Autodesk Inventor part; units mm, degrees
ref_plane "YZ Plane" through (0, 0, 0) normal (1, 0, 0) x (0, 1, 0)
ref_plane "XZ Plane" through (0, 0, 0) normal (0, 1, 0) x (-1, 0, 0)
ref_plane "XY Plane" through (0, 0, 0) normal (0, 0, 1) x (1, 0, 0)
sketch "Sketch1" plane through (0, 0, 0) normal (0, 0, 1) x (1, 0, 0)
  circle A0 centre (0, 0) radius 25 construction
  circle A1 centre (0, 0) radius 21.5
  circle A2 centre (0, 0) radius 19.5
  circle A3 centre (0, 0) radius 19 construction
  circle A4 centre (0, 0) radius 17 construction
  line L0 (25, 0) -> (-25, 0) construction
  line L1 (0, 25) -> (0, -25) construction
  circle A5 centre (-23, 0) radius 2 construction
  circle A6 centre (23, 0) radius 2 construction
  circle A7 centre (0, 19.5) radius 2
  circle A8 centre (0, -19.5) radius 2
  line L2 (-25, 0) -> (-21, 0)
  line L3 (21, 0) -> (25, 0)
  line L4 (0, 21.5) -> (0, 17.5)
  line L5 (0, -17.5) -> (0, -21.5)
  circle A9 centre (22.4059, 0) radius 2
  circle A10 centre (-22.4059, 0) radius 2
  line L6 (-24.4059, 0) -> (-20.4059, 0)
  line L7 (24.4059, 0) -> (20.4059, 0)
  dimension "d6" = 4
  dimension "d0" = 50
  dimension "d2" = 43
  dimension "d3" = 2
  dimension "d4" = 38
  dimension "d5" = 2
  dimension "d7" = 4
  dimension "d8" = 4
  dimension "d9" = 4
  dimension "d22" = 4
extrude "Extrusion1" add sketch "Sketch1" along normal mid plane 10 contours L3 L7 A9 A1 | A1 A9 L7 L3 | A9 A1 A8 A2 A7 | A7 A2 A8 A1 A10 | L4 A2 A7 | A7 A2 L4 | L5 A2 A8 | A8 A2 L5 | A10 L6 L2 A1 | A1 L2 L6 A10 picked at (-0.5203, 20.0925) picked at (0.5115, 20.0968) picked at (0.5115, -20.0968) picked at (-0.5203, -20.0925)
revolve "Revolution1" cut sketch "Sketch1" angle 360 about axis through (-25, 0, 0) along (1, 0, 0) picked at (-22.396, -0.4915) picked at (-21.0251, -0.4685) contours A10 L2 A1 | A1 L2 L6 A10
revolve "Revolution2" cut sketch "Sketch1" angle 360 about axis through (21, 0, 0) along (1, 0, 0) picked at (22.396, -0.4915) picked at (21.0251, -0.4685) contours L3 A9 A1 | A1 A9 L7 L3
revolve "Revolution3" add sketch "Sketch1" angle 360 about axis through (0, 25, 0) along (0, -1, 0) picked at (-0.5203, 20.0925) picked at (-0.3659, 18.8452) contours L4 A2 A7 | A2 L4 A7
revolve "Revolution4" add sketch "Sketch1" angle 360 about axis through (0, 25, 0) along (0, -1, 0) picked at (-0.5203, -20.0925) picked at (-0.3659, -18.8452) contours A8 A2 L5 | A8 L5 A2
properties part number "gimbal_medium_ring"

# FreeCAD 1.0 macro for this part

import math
import FreeCAD as App
import Part
import Sketcher

V = App.Vector
Q = App.Units.Quantity

doc = App.newDocument("Part")
body = doc.addObject("PartDesign::Body", "Body")

# Sketch on XY plane
sketch1 = body.newObject("Sketcher::SketchObject", "Sketch")
sketch1.AttachmentSupport = (doc.getObject("XY_Plane"), [""])
sketch1.MapMode = "FlatFace"
sketch1.addGeometry(Part.Circle(V(0, 0, 0), V(0, 0, 1), 22), False)
sketch1.addGeometry(Part.Circle(V(0, 0, 0), V(0, 0, 1), 20), False)
sketch1.addConstraint(Sketcher.Constraint("Coincident", 0, 3, -1, 1))
sketch1.addConstraint(Sketcher.Constraint("Coincident", 1, 3, -1, 1))
sketch1.addConstraint(Sketcher.Constraint("Diameter", 0, Q("43 mm")))
sketch1.addConstraint(Sketcher.Constraint("Diameter", 1, Q("39 mm")))
pad1 = body.newObject("PartDesign::Pad", "Pad")
pad1.Profile = sketch1
pad1.Length = 10
pad1.Midplane = True

# Sketch on XY plane
sketch2 = body.newObject("Sketcher::SketchObject", "Sketch001")
sketch2.AttachmentSupport = (doc.getObject("XY_Plane"), [""])
sketch2.MapMode = "FlatFace"
sketch2.addGeometry(Part.ArcOfCircle(Part.Circle(V(-22.4, 0, 0), V(0, 0, 1), 2), math.radians(180), math.radians(360)), False)
sketch2.addGeometry(Part.LineSegment(V(-20.4, 0, 0), V(-24.4, 0, 0)), False)
sketch2.addConstraint(Sketcher.Constraint("Coincident", 0, 1, 1, 2))
sketch2.addConstraint(Sketcher.Constraint("Coincident", 1, 1, 0, 2))
sketch2.addConstraint(Sketcher.Constraint("Horizontal", 1))
sketch2.addConstraint(Sketcher.Constraint("PointOnObject", 0, 3, -1))
sketch2.addConstraint(Sketcher.Constraint("PointOnObject", 0, 1, -1))
sketch2.addConstraint(Sketcher.Constraint("Radius", 0, Q("2 mm")))
sketch2.addConstraint(Sketcher.Constraint("DistanceX", 0, 3, -1, 1, Q("22.406 mm")))
groove = body.newObject("PartDesign::Groove", "Groove")
groove.Profile = sketch2
groove.ReferenceAxis = (sketch2, ["H_Axis"])
groove.Angle = 360

# Sketch on XY plane
sketch3 = body.newObject("Sketcher::SketchObject", "Sketch002")
sketch3.AttachmentSupport = (doc.getObject("XY_Plane"), [""])
sketch3.MapMode = "FlatFace"
sketch3.addGeometry(Part.LineSegment(V(24.4, 0, 0), V(20.4, 0, 0)), False)
sketch3.addGeometry(Part.ArcOfCircle(Part.Circle(V(22.4, 0, 0), V(0, 0, 1), 2), math.radians(180), math.radians(360)), False)
sketch3.addConstraint(Sketcher.Constraint("Coincident", 0, 1, 1, 2))
sketch3.addConstraint(Sketcher.Constraint("Coincident", 1, 1, 0, 2))
sketch3.addConstraint(Sketcher.Constraint("Horizontal", 0))
sketch3.addConstraint(Sketcher.Constraint("PointOnObject", 1, 3, -1))
sketch3.addConstraint(Sketcher.Constraint("PointOnObject", 0, 1, -1))
sketch3.addConstraint(Sketcher.Constraint("Radius", 1, Q("2 mm")))
sketch3.addConstraint(Sketcher.Constraint("DistanceX", -1, 1, 1, 3, Q("22.406 mm")))
groove2 = body.newObject("PartDesign::Groove", "Groove001")
groove2.Profile = sketch3
groove2.ReferenceAxis = (sketch3, ["H_Axis"])
groove2.Angle = 360

# Sketch on XY plane
sketch4 = body.newObject("Sketcher::SketchObject", "Sketch003")
sketch4.AttachmentSupport = (doc.getObject("XY_Plane"), [""])
sketch4.MapMode = "FlatFace"
sketch4.addGeometry(Part.ArcOfCircle(Part.Circle(V(0, 19.5, 0), V(0, 0, 1), 2), math.radians(90), math.radians(270)), False)
sketch4.addGeometry(Part.LineSegment(V(0, 17.5, 0), V(0, 21.5, 0)), False)
sketch4.addConstraint(Sketcher.Constraint("Coincident", 0, 1, 1, 2))
sketch4.addConstraint(Sketcher.Constraint("Coincident", 1, 1, 0, 2))
sketch4.addConstraint(Sketcher.Constraint("Vertical", 1))
sketch4.addConstraint(Sketcher.Constraint("PointOnObject", 0, 3, -2))
sketch4.addConstraint(Sketcher.Constraint("PointOnObject", 0, 1, -2))
sketch4.addConstraint(Sketcher.Constraint("Radius", 0, Q("2 mm")))
sketch4.addConstraint(Sketcher.Constraint("DistanceY", -1, 1, 0, 3, Q("19.5 mm")))
revolution = body.newObject("PartDesign::Revolution", "Revolution")
revolution.Profile = sketch4
revolution.ReferenceAxis = (sketch4, ["V_Axis"])
revolution.Angle = 360

# Sketch on XY plane
sketch5 = body.newObject("Sketcher::SketchObject", "Sketch004")
sketch5.AttachmentSupport = (doc.getObject("XY_Plane"), [""])
sketch5.MapMode = "FlatFace"
sketch5.addGeometry(Part.LineSegment(V(0, -21.5, 0), V(0, -17.5, 0)), False)
sketch5.addGeometry(Part.ArcOfCircle(Part.Circle(V(0, -19.5, 0), V(0, 0, 1), 2), math.radians(90), math.radians(270)), False)
sketch5.addConstraint(Sketcher.Constraint("Coincident", 0, 1, 1, 2))
sketch5.addConstraint(Sketcher.Constraint("Coincident", 1, 1, 0, 2))
sketch5.addConstraint(Sketcher.Constraint("Vertical", 0))
sketch5.addConstraint(Sketcher.Constraint("PointOnObject", 1, 3, -2))
sketch5.addConstraint(Sketcher.Constraint("PointOnObject", 0, 1, -2))
sketch5.addConstraint(Sketcher.Constraint("Radius", 1, Q("2 mm")))
sketch5.addConstraint(Sketcher.Constraint("DistanceY", 1, 3, -1, 1, Q("19.5 mm")))
revolution2 = body.newObject("PartDesign::Revolution", "Revolution001")
revolution2.Profile = sketch5
revolution2.ReferenceAxis = (sketch5, ["V_Axis"])
revolution2.Angle = 360

doc.recompute()
